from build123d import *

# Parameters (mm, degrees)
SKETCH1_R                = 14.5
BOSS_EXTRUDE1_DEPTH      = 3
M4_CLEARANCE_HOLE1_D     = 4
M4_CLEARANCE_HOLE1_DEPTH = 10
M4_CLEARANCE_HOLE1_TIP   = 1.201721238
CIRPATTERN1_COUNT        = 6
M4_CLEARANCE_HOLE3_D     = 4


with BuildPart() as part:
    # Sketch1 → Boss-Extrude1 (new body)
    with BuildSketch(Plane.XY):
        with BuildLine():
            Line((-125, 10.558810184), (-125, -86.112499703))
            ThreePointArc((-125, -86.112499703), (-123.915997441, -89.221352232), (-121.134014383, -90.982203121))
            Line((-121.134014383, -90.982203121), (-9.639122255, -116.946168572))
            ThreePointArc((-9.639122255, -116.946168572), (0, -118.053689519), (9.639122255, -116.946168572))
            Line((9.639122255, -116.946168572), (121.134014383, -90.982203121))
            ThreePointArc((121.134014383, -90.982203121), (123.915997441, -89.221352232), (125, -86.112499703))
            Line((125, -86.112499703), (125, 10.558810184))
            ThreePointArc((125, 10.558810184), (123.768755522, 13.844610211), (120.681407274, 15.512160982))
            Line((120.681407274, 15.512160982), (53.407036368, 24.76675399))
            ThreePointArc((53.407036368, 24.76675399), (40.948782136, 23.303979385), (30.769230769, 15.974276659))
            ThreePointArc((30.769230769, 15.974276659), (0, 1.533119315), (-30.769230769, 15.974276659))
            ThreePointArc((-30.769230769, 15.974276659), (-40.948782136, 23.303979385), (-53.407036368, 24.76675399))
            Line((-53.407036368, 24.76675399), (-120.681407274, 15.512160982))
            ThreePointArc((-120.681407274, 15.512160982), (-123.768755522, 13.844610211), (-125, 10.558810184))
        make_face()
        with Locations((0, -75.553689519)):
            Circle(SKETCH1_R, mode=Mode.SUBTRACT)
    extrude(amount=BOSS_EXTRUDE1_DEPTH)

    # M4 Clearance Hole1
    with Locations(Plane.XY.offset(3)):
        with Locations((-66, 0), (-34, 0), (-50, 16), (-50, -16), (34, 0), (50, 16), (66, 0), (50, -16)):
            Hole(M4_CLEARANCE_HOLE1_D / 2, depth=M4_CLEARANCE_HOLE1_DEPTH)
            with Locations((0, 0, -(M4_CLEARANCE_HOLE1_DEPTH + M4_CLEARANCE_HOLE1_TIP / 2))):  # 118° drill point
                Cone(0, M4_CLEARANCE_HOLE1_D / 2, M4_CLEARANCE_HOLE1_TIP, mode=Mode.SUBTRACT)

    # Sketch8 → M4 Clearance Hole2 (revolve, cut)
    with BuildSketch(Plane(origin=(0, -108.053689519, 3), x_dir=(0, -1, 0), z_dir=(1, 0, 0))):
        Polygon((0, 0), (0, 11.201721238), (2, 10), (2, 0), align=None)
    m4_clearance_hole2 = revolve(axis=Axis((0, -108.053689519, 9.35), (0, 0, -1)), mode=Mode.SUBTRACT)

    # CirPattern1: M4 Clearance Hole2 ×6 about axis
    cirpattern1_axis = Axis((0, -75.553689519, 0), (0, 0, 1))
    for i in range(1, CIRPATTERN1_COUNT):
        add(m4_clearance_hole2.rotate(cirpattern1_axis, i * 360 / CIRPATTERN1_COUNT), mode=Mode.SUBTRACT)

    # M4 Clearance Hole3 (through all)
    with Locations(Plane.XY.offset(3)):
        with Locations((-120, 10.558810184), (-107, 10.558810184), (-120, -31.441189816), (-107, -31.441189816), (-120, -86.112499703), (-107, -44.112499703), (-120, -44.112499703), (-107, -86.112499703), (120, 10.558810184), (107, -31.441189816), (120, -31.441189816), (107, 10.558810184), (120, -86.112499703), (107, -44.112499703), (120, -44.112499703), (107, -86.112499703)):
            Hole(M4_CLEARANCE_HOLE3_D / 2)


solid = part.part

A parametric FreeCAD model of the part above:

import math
import FreeCAD as App
import Part
import Sketcher

V = App.Vector
Q = App.Units.Quantity


def add_polygon(sketch, points):
    """Adds a closed chain of lines whose ends are joined by coincident constraints."""
    first, n = sketch.GeometryCount, len(points)
    for a, b in zip(points, points[1:] + points[:1]):
        sketch.addGeometry(Part.LineSegment(App.Vector(*a, 0), App.Vector(*b, 0)), False)
    for i in range(n):
        sketch.addConstraint(Sketcher.Constraint("Coincident", first + i, 2, first + (i + 1) % n, 1))

doc = App.newDocument("Part")
body = doc.addObject("PartDesign::Body", "Body")

sketch1 = body.newObject("Sketcher::SketchObject", "Sketch")
sketch1.AttachmentSupport = (doc.getObject("XY_Plane"), [""])
sketch1.MapMode = "FlatFace"
sketch1.addGeometry([
    Part.LineSegment(V(-125, 10.6, 0), V(-125, -86.1, 0)),
    Part.ArcOfCircle(Part.Circle(V(-120, -86.1, 0), V(0, 0, 1), 5), math.radians(180), math.radians(257)),
    Part.LineSegment(V(-121.1, -91, 0), V(-9.6, -116.9, 0)),
    Part.ArcOfCircle(Part.Circle(V(0, -75.6, 0), V(0, 0, 1), 42.5), math.radians(-103), math.radians(-77)),
    Part.LineSegment(V(9.6, -116.9, 0), V(121.1, -91, 0)),
    Part.ArcOfCircle(Part.Circle(V(120, -86.1, 0), V(0, 0, 1), 5), math.radians(-77), math.radians(0)),
    Part.LineSegment(V(125, -86.1, 0), V(125, 10.6, 0)),
    Part.ArcOfCircle(Part.Circle(V(120, 10.6, 0), V(0, 0, 1), 5), math.radians(0), math.radians(82)),
    Part.LineSegment(V(120.7, 15.5, 0), V(53.4, 24.8, 0)),
    Part.ArcOfCircle(Part.Circle(V(50, 0, 0), V(0, 0, 1), 25), math.radians(82), math.radians(140)),
    Part.ArcOfCircle(Part.Circle(V(0, 41.5, 0), V(0, 0, 1), 40), math.radians(-140), math.radians(-40)),
    Part.ArcOfCircle(Part.Circle(V(-50, 0, 0), V(0, 0, 1), 25), math.radians(40), math.radians(98)),
    Part.LineSegment(V(-53.4, 24.8, 0), V(-120.7, 15.5, 0)),
    Part.ArcOfCircle(Part.Circle(V(-120, 10.6, 0), V(0, 0, 1), 5), math.radians(98), math.radians(180)),
    Part.Circle(V(0, -75.6, 0), V(0, 0, 1), 14.5),
], False)
sketch1.addConstraint([
    Sketcher.Constraint("Tangent", 0, 2, 1, 1),
    Sketcher.Constraint("Tangent", 1, 2, 2, 1),
    Sketcher.Constraint("Tangent", 2, 2, 3, 1),
    Sketcher.Constraint("Tangent", 3, 2, 4, 1),
    Sketcher.Constraint("Tangent", 4, 2, 5, 1),
    Sketcher.Constraint("Tangent", 5, 2, 6, 1),
    Sketcher.Constraint("Tangent", 6, 2, 7, 1),
    Sketcher.Constraint("Tangent", 7, 2, 8, 1),
    Sketcher.Constraint("Tangent", 8, 2, 9, 1),
    Sketcher.Constraint("Tangent", 9, 2, 10, 2),
    Sketcher.Constraint("Tangent", 10, 1, 11, 1),
    Sketcher.Constraint("Tangent", 11, 2, 12, 1),
    Sketcher.Constraint("Tangent", 12, 2, 13, 1),
    Sketcher.Constraint("Tangent", 13, 2, 0, 1),
    Sketcher.Constraint("Vertical", 0),
    Sketcher.Constraint("Vertical", 6),
    Sketcher.Constraint("Coincident", 14, 3, 3, 3),
    Sketcher.Constraint("Equal", 1, 5),
    Sketcher.Constraint("Equal", 5, 7),
    Sketcher.Constraint("Equal", 9, 11),
    Sketcher.Constraint("Equal", 7, 13),
    Sketcher.Constraint("Symmetric", 9, 3, 11, 3, -1, 1),
    Sketcher.Constraint("Symmetric", 1, 3, 5, 3, -2),
    Sketcher.Constraint("Symmetric", 8, 2, 11, 2, -2),
    Sketcher.Constraint("PointOnObject", 3, 3, -2),
    Sketcher.Constraint("Diameter", 14, 29.0),
    Sketcher.Constraint("Radius", 1, 5.0),
    Sketcher.Constraint("Radius", 9, 25.0),
    Sketcher.Constraint("Radius", 10, 40.0),
    Sketcher.Constraint("Radius", 3, 42.5),
    Sketcher.Constraint("DistanceX", 1, 3, -1, 1, 120.0),
    Sketcher.Constraint("DistanceX", -1, 1, 9, 3, 50.0),
    Sketcher.Constraint("DistanceY", 0, 2, 0, 1, 96.67131),
    Sketcher.Constraint("DistanceY", 1, 3, -1, 1, 86.1125),
    Sketcher.Constraint("DistanceY", 3, 3, 7, 3, 86.1125),
])
pad1 = body.newObject("PartDesign::Pad", "Pad")
pad1.Profile = sketch1
pad1.Length = 3

sketch2 = body.newObject("Sketcher::SketchObject", "Sketch001")
sketch2.AttachmentSupport = (doc.getObject("XY_Plane"), [""])
sketch2.MapMode = "FlatFace"
sketch2.AttachmentOffset = App.Placement(V(0, 0, 3), App.Rotation())
sketch2.addGeometry([
    Part.Circle(V(-66, 0, 0), V(0, 0, 1), 2),
    Part.Circle(V(-34, 0, 0), V(0, 0, 1), 2),
    Part.Circle(V(-50, 16, 0), V(0, 0, 1), 2),
    Part.Circle(V(-50, -16, 0), V(0, 0, 1), 2),
    Part.Circle(V(34, 0, 0), V(0, 0, 1), 2),
    Part.Circle(V(50, 16, 0), V(0, 0, 1), 2),
    Part.Circle(V(66, 0, 0), V(0, 0, 1), 2),
    Part.Circle(V(50, -16, 0), V(0, 0, 1), 2),
], False)
sketch2.addConstraint([
    Sketcher.Constraint("Equal", 0, 1),
    Sketcher.Constraint("Equal", 1, 2),
    Sketcher.Constraint("Equal", 2, 3),
    Sketcher.Constraint("Equal", 3, 4),
    Sketcher.Constraint("Equal", 4, 5),
    Sketcher.Constraint("Equal", 5, 6),
    Sketcher.Constraint("Equal", 6, 7),
    Sketcher.Constraint("Symmetric", 1, 3, 4, 3, -1, 1),
    Sketcher.Constraint("Symmetric", 3, 3, 5, 3, -1, 1),
    Sketcher.Constraint("Symmetric", 0, 3, 6, 3, -1, 1),
    Sketcher.Constraint("Symmetric", 2, 3, 7, 3, -1, 1),
    Sketcher.Constraint("Symmetric", 2, 3, 5, 3, -2),
    Sketcher.Constraint("PointOnObject", 0, 3, -1),
    Sketcher.Constraint("PointOnObject", 1, 3, -1),
    Sketcher.Constraint("Diameter", 0, 4.0),
    Sketcher.Constraint("DistanceX", 0, 3, -1, 1, 66.0),
    Sketcher.Constraint("DistanceX", 1, 3, -1, 1, 34.0),
    Sketcher.Constraint("DistanceX", 2, 3, -1, 1, 50.0),
    Sketcher.Constraint("DistanceY", -1, 1, 2, 3, 16.0),
])
doc.recompute()
hole = body.newObject("PartDesign::Hole", "Hole")
hole.Profile = sketch2
hole.ThreadType = "None"
hole.Diameter = 4
hole.DepthType = "Dimension"
hole.Depth = 10
hole.DrillPoint = "Angled"
hole.DrillPointAngle = 118

sketch3 = body.newObject("Sketcher::SketchObject", "Sketch002")
sketch3.AttachmentSupport = (doc.getObject("YZ_Plane"), [""])
sketch3.MapMode = "FlatFace"
add_polygon(sketch3, [(-108.1, -8.2), (-108.1, 3), (-110.1, 3), (-110.1, -7)])
sketch3.addGeometry(Part.LineSegment(V(-108.1, 3, 0), V(-108.1, -8.2, 0)), True)
sketch3.addConstraint([
    Sketcher.Constraint("Vertical", 0),
    Sketcher.Constraint("Horizontal", 1),
    Sketcher.Constraint("Vertical", 2),
    Sketcher.Constraint("Vertical", 4),
    Sketcher.Constraint("Coincident", 4, 1, 0, 2),
    Sketcher.Constraint("Equal", 0, 4),
    Sketcher.Constraint("DistanceX", 1, 2, 1, 1, 2.0),
    Sketcher.Constraint("DistanceY", 2, 2, 2, 1, 10.0),
    Sketcher.Constraint("Angle", 3, Q("-31 deg")),
    Sketcher.Constraint("DistanceY", -1, 1, 0, 2, 3.0),
    Sketcher.Constraint("DistanceX", 0, 2, -1, 1, 108.05369),
])
groove = body.newObject("PartDesign::Groove", "Groove")
groove.Profile = sketch3
groove.ReferenceAxis = (sketch3, ["Axis0"])
groove.Angle = 360
doc.recompute()

datumline = body.newObject("PartDesign::Line", "DatumLine")
datumline.Placement = App.Placement(V(0, -75.55369, 0), App.Rotation(V(0, 0, 1), V(0, 0, 1)))
polarpattern = body.newObject("PartDesign::PolarPattern", "PolarPattern")
polarpattern.Originals = [groove]
polarpattern.Axis = (datumline, [""])
polarpattern.Angle = 360
polarpattern.Occurrences = 6
body.Tip = polarpattern

sketch4 = body.newObject("Sketcher::SketchObject", "Sketch003")
sketch4.AttachmentSupport = (doc.getObject("XY_Plane"), [""])
sketch4.MapMode = "FlatFace"
sketch4.AttachmentOffset = App.Placement(V(0, 0, 3), App.Rotation())
sketch4.addGeometry([
    Part.Circle(V(-120, 10.6, 0), V(0, 0, 1), 2),
    Part.Circle(V(-107, 10.6, 0), V(0, 0, 1), 2),
    Part.Circle(V(-120, -31.4, 0), V(0, 0, 1), 2),
    Part.Circle(V(-107, -31.4, 0), V(0, 0, 1), 2),
    Part.Circle(V(-120, -86.1, 0), V(0, 0, 1), 2),
    Part.Circle(V(-107, -44.1, 0), V(0, 0, 1), 2),
    Part.Circle(V(-120, -44.1, 0), V(0, 0, 1), 2),
    Part.Circle(V(-107, -86.1, 0), V(0, 0, 1), 2),
    Part.Circle(V(120, 10.6, 0), V(0, 0, 1), 2),
    Part.Circle(V(107, -31.4, 0), V(0, 0, 1), 2),
    Part.Circle(V(120, -31.4, 0), V(0, 0, 1), 2),
    Part.Circle(V(107, 10.6, 0), V(0, 0, 1), 2),
    Part.Circle(V(120, -86.1, 0), V(0, 0, 1), 2),
    Part.Circle(V(107, -44.1, 0), V(0, 0, 1), 2),
    Part.Circle(V(120, -44.1, 0), V(0, 0, 1), 2),
    Part.Circle(V(107, -86.1, 0), V(0, 0, 1), 2),
], False)
sketch4.addConstraint([
    Sketcher.Constraint("Equal", 0, 1),
    Sketcher.Constraint("Equal", 1, 2),
    Sketcher.Constraint("Equal", 2, 3),
    Sketcher.Constraint("Equal", 3, 4),
    Sketcher.Constraint("Equal", 4, 5),
    Sketcher.Constraint("Equal", 5, 6),
    Sketcher.Constraint("Equal", 6, 7),
    Sketcher.Constraint("Equal", 7, 8),
    Sketcher.Constraint("Equal", 8, 9),
    Sketcher.Constraint("Equal", 9, 10),
    Sketcher.Constraint("Equal", 10, 11),
    Sketcher.Constraint("Equal", 11, 12),
    Sketcher.Constraint("Equal", 12, 13),
    Sketcher.Constraint("Equal", 13, 14),
    Sketcher.Constraint("Equal", 14, 15),
    Sketcher.Constraint("Symmetric", 0, 3, 8, 3, -2),
    Sketcher.Constraint("Symmetric", 3, 3, 9, 3, -2),
    Sketcher.Constraint("Symmetric", 2, 3, 10, 3, -2),
    Sketcher.Constraint("Symmetric", 1, 3, 11, 3, -2),
    Sketcher.Constraint("Symmetric", 4, 3, 12, 3, -2),
    Sketcher.Constraint("Symmetric", 5, 3, 13, 3, -2),
    Sketcher.Constraint("Symmetric", 6, 3, 14, 3, -2),
    Sketcher.Constraint("Symmetric", 7, 3, 15, 3, -2),
    Sketcher.Constraint("Horizontal", 0, 3, 1, 3),
    Sketcher.Constraint("Horizontal", 2, 3, 3, 3),
    Sketcher.Constraint("Horizontal", 5, 3, 6, 3),
    Sketcher.Constraint("Horizontal", 4, 3, 7, 3),
    Sketcher.Constraint("Vertical", 0, 3, 2, 3),
    Sketcher.Constraint("Vertical", 1, 3, 3, 3),
    Sketcher.Constraint("Vertical", 2, 3, 4, 3),
    Sketcher.Constraint("Vertical", 3, 3, 5, 3),
    Sketcher.Constraint("Vertical", 4, 3, 6, 3),
    Sketcher.Constraint("Vertical", 5, 3, 7, 3),
    Sketcher.Constraint("Diameter", 0, 4.0),
    Sketcher.Constraint("DistanceX", 0, 3, -1, 1, 120.0),
    Sketcher.Constraint("DistanceX", 1, 3, -1, 1, 107.0),
    Sketcher.Constraint("DistanceY", 2, 3, 0, 3, 42.0),
    Sketcher.Constraint("DistanceY", 4, 3, 5, 3, 42.0),
    Sketcher.Constraint("DistanceY", 4, 3, -1, 1, 86.1125),
    Sketcher.Constraint("DistanceY", -1, 1, 0, 3, 10.55881),
])
doc.recompute()
hole2 = body.newObject("PartDesign::Hole", "Hole001")
hole2.Profile = sketch4
hole2.ThreadType = "None"
hole2.Diameter = 4
hole2.DepthType = "ThroughAll"

doc.recompute()
